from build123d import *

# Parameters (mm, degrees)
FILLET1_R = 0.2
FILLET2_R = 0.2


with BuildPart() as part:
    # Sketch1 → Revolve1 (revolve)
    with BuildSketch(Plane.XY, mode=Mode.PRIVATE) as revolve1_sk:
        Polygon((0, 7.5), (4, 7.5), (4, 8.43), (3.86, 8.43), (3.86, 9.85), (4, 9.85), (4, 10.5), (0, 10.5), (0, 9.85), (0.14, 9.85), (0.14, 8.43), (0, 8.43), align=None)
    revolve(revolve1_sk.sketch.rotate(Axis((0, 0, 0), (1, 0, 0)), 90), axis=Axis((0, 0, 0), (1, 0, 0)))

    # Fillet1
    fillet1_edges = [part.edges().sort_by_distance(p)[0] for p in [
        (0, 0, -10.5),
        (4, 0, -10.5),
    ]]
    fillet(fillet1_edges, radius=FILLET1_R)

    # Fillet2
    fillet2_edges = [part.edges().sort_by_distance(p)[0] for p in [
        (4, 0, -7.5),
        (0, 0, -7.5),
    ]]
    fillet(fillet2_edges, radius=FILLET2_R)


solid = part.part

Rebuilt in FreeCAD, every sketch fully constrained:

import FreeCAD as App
import Part
import Sketcher

V = App.Vector
Q = App.Units.Quantity


def edges_at(feature, points):
    """Names of the edges that pass closest to the given points."""
    edges = feature.Shape.Edges
    near = lambda p: min(range(len(edges)), key=lambda i: edges[i].distToShape(Part.Vertex(*p))[0])
    return sorted({f"Edge{near(p) + 1}" for p in points})

doc = App.newDocument("Part")
body = doc.addObject("PartDesign::Body", "Body")

# Sketch on XY plane
sketch1 = doc.addObject("Sketcher::SketchObject", "Sketch")
body.addObject(sketch1)
sketch1.AttachmentSupport = (doc.XY_Plane, [""])
sketch1.MapMode = "FlatFace"
sketch1.addGeometry([
    Part.LineSegment(V(0, 7.5, 0), V(4, 7.5, 0)),  # 0
    Part.LineSegment(V(4, 7.5, 0), V(4, 8.43, 0)),  # 1
    Part.LineSegment(V(4, 8.43, 0), V(3.86, 8.43, 0)),  # 2
    Part.LineSegment(V(3.86, 8.43, 0), V(3.86, 9.85, 0)),  # 3
    Part.LineSegment(V(3.86, 9.85, 0), V(4, 9.85, 0)),  # 4
    Part.LineSegment(V(4, 9.85, 0), V(4, 10.5, 0)),  # 5
    Part.LineSegment(V(4, 10.5, 0), V(0, 10.5, 0)),  # 6
    Part.LineSegment(V(0, 10.5, 0), V(0, 9.85, 0)),  # 7
    Part.LineSegment(V(0, 9.85, 0), V(0.14, 9.85, 0)),  # 8
    Part.LineSegment(V(0.14, 9.85, 0), V(0.14, 8.43, 0)),  # 9
    Part.LineSegment(V(0.14, 8.43, 0), V(0, 8.43, 0)),  # 10
    Part.LineSegment(V(0, 8.43, 0), V(0, 7.5, 0)),  # 11
], False)
sketch1.addConstraint([
    Sketcher.Constraint("Coincident", 0, 2, 1, 1),
    Sketcher.Constraint("Coincident", 1, 2, 2, 1),
    Sketcher.Constraint("Coincident", 2, 2, 3, 1),
    Sketcher.Constraint("Coincident", 3, 2, 4, 1),
    Sketcher.Constraint("Coincident", 4, 2, 5, 1),
    Sketcher.Constraint("Coincident", 5, 2, 6, 1),
    Sketcher.Constraint("Coincident", 6, 2, 7, 1),
    Sketcher.Constraint("Coincident", 7, 2, 8, 1),
    Sketcher.Constraint("Coincident", 8, 2, 9, 1),
    Sketcher.Constraint("Coincident", 9, 2, 10, 1),
    Sketcher.Constraint("Coincident", 10, 2, 11, 1),
    Sketcher.Constraint("Coincident", 11, 2, 0, 1),
    Sketcher.Constraint("Horizontal", 0),
    Sketcher.Constraint("Vertical", 1),
    Sketcher.Constraint("Horizontal", 2),
    Sketcher.Constraint("Vertical", 3),
    Sketcher.Constraint("Horizontal", 4),
    Sketcher.Constraint("Vertical", 5),
    Sketcher.Constraint("Horizontal", 6),
    Sketcher.Constraint("Vertical", 7),
    Sketcher.Constraint("Horizontal", 8),
    Sketcher.Constraint("Vertical", 9),
    Sketcher.Constraint("Horizontal", 10),
    Sketcher.Constraint("Vertical", 11),
    Sketcher.Constraint("PointOnObject", 6, 2, -2),
    Sketcher.Constraint("PointOnObject", 10, 2, -2),
    Sketcher.Constraint("Horizontal", 4, 2, 7, 2),
    Sketcher.Constraint("Horizontal", 2, 2, 9, 2),
    Sketcher.Constraint("Vertical", 1, 2, 4, 2),
    Sketcher.Constraint("Equal", 4, 8),
    Sketcher.Constraint("DistanceX", 0, 1, 0, 2, Q("4 mm")),
    Sketcher.Constraint("DistanceY", 0, 2, 5, 2, Q("3 mm")),
    Sketcher.Constraint("DistanceX", 2, 2, 2, 1, Q("0.14 mm")),
    Sketcher.Constraint("DistanceY", 1, 1, 1, 2, Q("0.93 mm")),
    Sketcher.Constraint("DistanceY", 3, 1, 3, 2, Q("1.42 mm")),
    Sketcher.Constraint("DistanceY", -1, 1, 0, 2, Q("7.5 mm")),
])
revolution = doc.addObject("PartDesign::Revolution", "Revolution")
body.addObject(revolution)
revolution.Profile = sketch1
revolution.ReferenceAxis = (sketch1, ["H_Axis"])
revolution.Angle = 360
doc.recompute()

fillet = doc.addObject("PartDesign::Fillet", "Fillet")
body.addObject(fillet)
fillet.Base = (revolution, edges_at(revolution, [(0, 0, -10.5), (4, 0, -10.5)]))
fillet.Radius = 0.2
doc.recompute()

fillet2 = doc.addObject("PartDesign::Fillet", "Fillet001")
body.addObject(fillet2)
fillet2.Base = (fillet, edges_at(fillet, [(4, 0, -7.5), (0, 0, -7.5)]))
fillet2.Radius = 0.2

doc.recompute()
